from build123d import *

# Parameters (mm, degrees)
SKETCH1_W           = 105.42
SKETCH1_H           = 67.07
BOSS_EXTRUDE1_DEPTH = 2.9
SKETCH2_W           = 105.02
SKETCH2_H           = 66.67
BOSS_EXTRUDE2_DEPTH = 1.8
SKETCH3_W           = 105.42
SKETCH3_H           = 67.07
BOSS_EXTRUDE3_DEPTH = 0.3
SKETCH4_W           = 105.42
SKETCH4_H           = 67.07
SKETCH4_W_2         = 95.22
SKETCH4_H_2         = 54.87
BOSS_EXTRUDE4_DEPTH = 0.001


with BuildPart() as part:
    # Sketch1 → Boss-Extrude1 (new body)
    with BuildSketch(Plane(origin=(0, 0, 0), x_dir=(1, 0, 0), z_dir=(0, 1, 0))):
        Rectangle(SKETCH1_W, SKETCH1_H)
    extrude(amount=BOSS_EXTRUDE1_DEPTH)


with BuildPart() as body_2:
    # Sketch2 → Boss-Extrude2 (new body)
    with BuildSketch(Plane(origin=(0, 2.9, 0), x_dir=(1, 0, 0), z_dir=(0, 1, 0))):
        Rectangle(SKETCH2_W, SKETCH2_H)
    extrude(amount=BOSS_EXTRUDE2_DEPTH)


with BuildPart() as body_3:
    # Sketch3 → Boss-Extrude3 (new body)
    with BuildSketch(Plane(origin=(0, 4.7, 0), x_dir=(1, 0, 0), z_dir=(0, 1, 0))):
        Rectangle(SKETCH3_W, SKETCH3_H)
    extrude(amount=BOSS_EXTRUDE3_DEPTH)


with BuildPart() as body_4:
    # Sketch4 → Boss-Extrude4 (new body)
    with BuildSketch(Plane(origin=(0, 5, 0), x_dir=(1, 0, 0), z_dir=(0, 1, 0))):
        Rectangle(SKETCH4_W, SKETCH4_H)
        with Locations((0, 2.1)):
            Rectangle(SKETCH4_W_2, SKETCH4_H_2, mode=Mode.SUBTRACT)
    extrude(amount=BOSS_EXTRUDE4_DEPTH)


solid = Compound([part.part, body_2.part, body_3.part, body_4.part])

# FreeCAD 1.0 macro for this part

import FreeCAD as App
import Part
import Sketcher

V = App.Vector
Q = App.Units.Quantity

doc = App.newDocument("Part")
body = doc.addObject("PartDesign::Body", "Body")

# Sketch on XZ plane
sketch1 = doc.addObject("Sketcher::SketchObject", "Sketch")
body.addObject(sketch1)
sketch1.AttachmentSupport = (doc.XZ_Plane, [""])
sketch1.MapMode = "FlatFace"
sketch1.addGeometry(Part.LineSegment(V(-53, -34, 0), V(-53, 34, 0)), False)
sketch1.addGeometry(Part.LineSegment(V(-53, 34, 0), V(53, 34, 0)), False)
sketch1.addGeometry(Part.LineSegment(V(53, 34, 0), V(53, -34, 0)), False)
sketch1.addGeometry(Part.LineSegment(V(53, -34, 0), V(-53, -34, 0)), False)
sketch1.addConstraint(Sketcher.Constraint("Coincident", 0, 2, 1, 1))
sketch1.addConstraint(Sketcher.Constraint("Coincident", 1, 2, 2, 1))
sketch1.addConstraint(Sketcher.Constraint("Coincident", 2, 2, 3, 1))
sketch1.addConstraint(Sketcher.Constraint("Coincident", 3, 2, 0, 1))
sketch1.addConstraint(Sketcher.Constraint("Vertical", 0))
sketch1.addConstraint(Sketcher.Constraint("Horizontal", 1))
sketch1.addConstraint(Sketcher.Constraint("Vertical", 2))
sketch1.addConstraint(Sketcher.Constraint("Horizontal", 3))
sketch1.addConstraint(Sketcher.Constraint("Symmetric", 0, 2, 2, 2, -1, 1))
sketch1.addConstraint(Sketcher.Constraint("DistanceX", 1, 1, 1, 2, Q("105.42 mm")))
sketch1.addConstraint(Sketcher.Constraint("DistanceY", 0, 1, 0, 2, Q("67.07 mm")))
pad1 = doc.addObject("PartDesign::Pad", "Pad")
body.addObject(pad1)
pad1.Profile = sketch1
pad1.Length = 2.9
pad1.Reversed = True
body2 = doc.addObject("PartDesign::Body", "Body001")

# Sketch on XZ plane
sketch2 = doc.addObject("Sketcher::SketchObject", "Sketch001")
body2.addObject(sketch2)
sketch2.AttachmentSupport = (doc.getObject("XZ_Plane001"), [""])
sketch2.MapMode = "FlatFace"
sketch2.AttachmentOffset = App.Placement(V(0, 0, -2.9), App.Rotation())
sketch2.addGeometry(Part.LineSegment(V(-53, -33, 0), V(-53, 33, 0)), False)
sketch2.addGeometry(Part.LineSegment(V(-53, 33, 0), V(53, 33, 0)), False)
sketch2.addGeometry(Part.LineSegment(V(53, 33, 0), V(53, -33, 0)), False)
sketch2.addGeometry(Part.LineSegment(V(53, -33, 0), V(-53, -33, 0)), False)
sketch2.addConstraint(Sketcher.Constraint("Coincident", 0, 2, 1, 1))
sketch2.addConstraint(Sketcher.Constraint("Coincident", 1, 2, 2, 1))
sketch2.addConstraint(Sketcher.Constraint("Coincident", 2, 2, 3, 1))
sketch2.addConstraint(Sketcher.Constraint("Coincident", 3, 2, 0, 1))
sketch2.addConstraint(Sketcher.Constraint("Vertical", 0))
sketch2.addConstraint(Sketcher.Constraint("Horizontal", 1))
sketch2.addConstraint(Sketcher.Constraint("Vertical", 2))
sketch2.addConstraint(Sketcher.Constraint("Horizontal", 3))
sketch2.addConstraint(Sketcher.Constraint("Symmetric", 0, 2, 2, 2, -1, 1))
sketch2.addConstraint(Sketcher.Constraint("DistanceX", 1, 1, 1, 2, Q("105.02 mm")))
sketch2.addConstraint(Sketcher.Constraint("DistanceY", 0, 1, 0, 2, Q("66.67 mm")))
pad2 = doc.addObject("PartDesign::Pad", "Pad001")
body2.addObject(pad2)
pad2.Profile = sketch2
pad2.Length = 1.8
pad2.Reversed = True
body3 = doc.addObject("PartDesign::Body", "Body002")

# Sketch on XZ plane
sketch3 = doc.addObject("Sketcher::SketchObject", "Sketch002")
body3.addObject(sketch3)
sketch3.AttachmentSupport = (doc.getObject("XZ_Plane002"), [""])
sketch3.MapMode = "FlatFace"
sketch3.AttachmentOffset = App.Placement(V(0, 0, -4.7), App.Rotation())
sketch3.addGeometry(Part.LineSegment(V(-53, -34, 0), V(-53, 34, 0)), False)
sketch3.addGeometry(Part.LineSegment(V(-53, 34, 0), V(53, 34, 0)), False)
sketch3.addGeometry(Part.LineSegment(V(53, 34, 0), V(53, -34, 0)), False)
sketch3.addGeometry(Part.LineSegment(V(53, -34, 0), V(-53, -34, 0)), False)
sketch3.addConstraint(Sketcher.Constraint("Coincident", 0, 2, 1, 1))
sketch3.addConstraint(Sketcher.Constraint("Coincident", 1, 2, 2, 1))
sketch3.addConstraint(Sketcher.Constraint("Coincident", 2, 2, 3, 1))
sketch3.addConstraint(Sketcher.Constraint("Coincident", 3, 2, 0, 1))
sketch3.addConstraint(Sketcher.Constraint("Vertical", 0))
sketch3.addConstraint(Sketcher.Constraint("Horizontal", 1))
sketch3.addConstraint(Sketcher.Constraint("Vertical", 2))
sketch3.addConstraint(Sketcher.Constraint("Horizontal", 3))
sketch3.addConstraint(Sketcher.Constraint("Symmetric", 0, 2, 2, 2, -1, 1))
sketch3.addConstraint(Sketcher.Constraint("DistanceX", 1, 1, 1, 2, Q("105.42 mm")))
sketch3.addConstraint(Sketcher.Constraint("DistanceY", 0, 1, 0, 2, Q("67.07 mm")))
pad3 = doc.addObject("PartDesign::Pad", "Pad002")
body3.addObject(pad3)
pad3.Profile = sketch3
pad3.Length = 0.3
pad3.Reversed = True
body4 = doc.addObject("PartDesign::Body", "Body003")

# Sketch on XZ plane
sketch4 = doc.addObject("Sketcher::SketchObject", "Sketch003")
body4.addObject(sketch4)
sketch4.AttachmentSupport = (doc.getObject("XZ_Plane003"), [""])
sketch4.MapMode = "FlatFace"
sketch4.AttachmentOffset = App.Placement(V(0, 0, -5), App.Rotation())
sketch4.addGeometry(Part.LineSegment(V(-53, -34, 0), V(-53, 34, 0)), False)
sketch4.addGeometry(Part.LineSegment(V(-53, 34, 0), V(53, 34, 0)), False)
sketch4.addGeometry(Part.LineSegment(V(53, 34, 0), V(53, -34, 0)), False)
sketch4.addGeometry(Part.LineSegment(V(53, -34, 0), V(-53, -34, 0)), False)
sketch4.addGeometry(Part.LineSegment(V(48, 25, 0), V(-48, 25, 0)), False)
sketch4.addGeometry(Part.LineSegment(V(-48, 25, 0), V(-48, -30, 0)), False)
sketch4.addGeometry(Part.LineSegment(V(-48, -30, 0), V(48, -30, 0)), False)
sketch4.addGeometry(Part.LineSegment(V(48, -30, 0), V(48, 25, 0)), False)
sketch4.addConstraint(Sketcher.Constraint("Coincident", 0, 2, 1, 1))
sketch4.addConstraint(Sketcher.Constraint("Coincident", 1, 2, 2, 1))
sketch4.addConstraint(Sketcher.Constraint("Coincident", 2, 2, 3, 1))
sketch4.addConstraint(Sketcher.Constraint("Coincident", 3, 2, 0, 1))
sketch4.addConstraint(Sketcher.Constraint("Coincident", 4, 2, 5, 1))
sketch4.addConstraint(Sketcher.Constraint("Coincident", 5, 2, 6, 1))
sketch4.addConstraint(Sketcher.Constraint("Coincident", 6, 2, 7, 1))
sketch4.addConstraint(Sketcher.Constraint("Coincident", 7, 2, 4, 1))
sketch4.addConstraint(Sketcher.Constraint("Vertical", 0))
sketch4.addConstraint(Sketcher.Constraint("Horizontal", 1))
sketch4.addConstraint(Sketcher.Constraint("Vertical", 2))
sketch4.addConstraint(Sketcher.Constraint("Horizontal", 3))
sketch4.addConstraint(Sketcher.Constraint("Horizontal", 4))
sketch4.addConstraint(Sketcher.Constraint("Vertical", 5))
sketch4.addConstraint(Sketcher.Constraint("Horizontal", 6))
sketch4.addConstraint(Sketcher.Constraint("Vertical", 7))
sketch4.addConstraint(Sketcher.Constraint("Symmetric", 0, 2, 2, 2, -1, 1))
sketch4.addConstraint(Sketcher.Constraint("DistanceY", 3, 2, 5, 2, Q("4 mm")))
sketch4.addConstraint(Sketcher.Constraint("DistanceX", 1, 1, 1, 2, Q("105.42 mm")))
sketch4.addConstraint(Sketcher.Constraint("DistanceX", 4, 2, 4, 1, Q("95.22 mm")))
sketch4.addConstraint(Sketcher.Constraint("DistanceY", 0, 1, 0, 2, Q("67.07 mm")))
sketch4.addConstraint(Sketcher.Constraint("DistanceY", 5, 2, 5, 1, Q("54.87 mm")))
sketch4.addConstraint(Sketcher.Constraint("DistanceX", 0, 2, 4, 2, Q("5.1 mm")))
pad4 = doc.addObject("PartDesign::Pad", "Pad003")
body4.addObject(pad4)
pad4.Profile = sketch4
pad4.Length = 0.001
pad4.Reversed = True

doc.recompute()
